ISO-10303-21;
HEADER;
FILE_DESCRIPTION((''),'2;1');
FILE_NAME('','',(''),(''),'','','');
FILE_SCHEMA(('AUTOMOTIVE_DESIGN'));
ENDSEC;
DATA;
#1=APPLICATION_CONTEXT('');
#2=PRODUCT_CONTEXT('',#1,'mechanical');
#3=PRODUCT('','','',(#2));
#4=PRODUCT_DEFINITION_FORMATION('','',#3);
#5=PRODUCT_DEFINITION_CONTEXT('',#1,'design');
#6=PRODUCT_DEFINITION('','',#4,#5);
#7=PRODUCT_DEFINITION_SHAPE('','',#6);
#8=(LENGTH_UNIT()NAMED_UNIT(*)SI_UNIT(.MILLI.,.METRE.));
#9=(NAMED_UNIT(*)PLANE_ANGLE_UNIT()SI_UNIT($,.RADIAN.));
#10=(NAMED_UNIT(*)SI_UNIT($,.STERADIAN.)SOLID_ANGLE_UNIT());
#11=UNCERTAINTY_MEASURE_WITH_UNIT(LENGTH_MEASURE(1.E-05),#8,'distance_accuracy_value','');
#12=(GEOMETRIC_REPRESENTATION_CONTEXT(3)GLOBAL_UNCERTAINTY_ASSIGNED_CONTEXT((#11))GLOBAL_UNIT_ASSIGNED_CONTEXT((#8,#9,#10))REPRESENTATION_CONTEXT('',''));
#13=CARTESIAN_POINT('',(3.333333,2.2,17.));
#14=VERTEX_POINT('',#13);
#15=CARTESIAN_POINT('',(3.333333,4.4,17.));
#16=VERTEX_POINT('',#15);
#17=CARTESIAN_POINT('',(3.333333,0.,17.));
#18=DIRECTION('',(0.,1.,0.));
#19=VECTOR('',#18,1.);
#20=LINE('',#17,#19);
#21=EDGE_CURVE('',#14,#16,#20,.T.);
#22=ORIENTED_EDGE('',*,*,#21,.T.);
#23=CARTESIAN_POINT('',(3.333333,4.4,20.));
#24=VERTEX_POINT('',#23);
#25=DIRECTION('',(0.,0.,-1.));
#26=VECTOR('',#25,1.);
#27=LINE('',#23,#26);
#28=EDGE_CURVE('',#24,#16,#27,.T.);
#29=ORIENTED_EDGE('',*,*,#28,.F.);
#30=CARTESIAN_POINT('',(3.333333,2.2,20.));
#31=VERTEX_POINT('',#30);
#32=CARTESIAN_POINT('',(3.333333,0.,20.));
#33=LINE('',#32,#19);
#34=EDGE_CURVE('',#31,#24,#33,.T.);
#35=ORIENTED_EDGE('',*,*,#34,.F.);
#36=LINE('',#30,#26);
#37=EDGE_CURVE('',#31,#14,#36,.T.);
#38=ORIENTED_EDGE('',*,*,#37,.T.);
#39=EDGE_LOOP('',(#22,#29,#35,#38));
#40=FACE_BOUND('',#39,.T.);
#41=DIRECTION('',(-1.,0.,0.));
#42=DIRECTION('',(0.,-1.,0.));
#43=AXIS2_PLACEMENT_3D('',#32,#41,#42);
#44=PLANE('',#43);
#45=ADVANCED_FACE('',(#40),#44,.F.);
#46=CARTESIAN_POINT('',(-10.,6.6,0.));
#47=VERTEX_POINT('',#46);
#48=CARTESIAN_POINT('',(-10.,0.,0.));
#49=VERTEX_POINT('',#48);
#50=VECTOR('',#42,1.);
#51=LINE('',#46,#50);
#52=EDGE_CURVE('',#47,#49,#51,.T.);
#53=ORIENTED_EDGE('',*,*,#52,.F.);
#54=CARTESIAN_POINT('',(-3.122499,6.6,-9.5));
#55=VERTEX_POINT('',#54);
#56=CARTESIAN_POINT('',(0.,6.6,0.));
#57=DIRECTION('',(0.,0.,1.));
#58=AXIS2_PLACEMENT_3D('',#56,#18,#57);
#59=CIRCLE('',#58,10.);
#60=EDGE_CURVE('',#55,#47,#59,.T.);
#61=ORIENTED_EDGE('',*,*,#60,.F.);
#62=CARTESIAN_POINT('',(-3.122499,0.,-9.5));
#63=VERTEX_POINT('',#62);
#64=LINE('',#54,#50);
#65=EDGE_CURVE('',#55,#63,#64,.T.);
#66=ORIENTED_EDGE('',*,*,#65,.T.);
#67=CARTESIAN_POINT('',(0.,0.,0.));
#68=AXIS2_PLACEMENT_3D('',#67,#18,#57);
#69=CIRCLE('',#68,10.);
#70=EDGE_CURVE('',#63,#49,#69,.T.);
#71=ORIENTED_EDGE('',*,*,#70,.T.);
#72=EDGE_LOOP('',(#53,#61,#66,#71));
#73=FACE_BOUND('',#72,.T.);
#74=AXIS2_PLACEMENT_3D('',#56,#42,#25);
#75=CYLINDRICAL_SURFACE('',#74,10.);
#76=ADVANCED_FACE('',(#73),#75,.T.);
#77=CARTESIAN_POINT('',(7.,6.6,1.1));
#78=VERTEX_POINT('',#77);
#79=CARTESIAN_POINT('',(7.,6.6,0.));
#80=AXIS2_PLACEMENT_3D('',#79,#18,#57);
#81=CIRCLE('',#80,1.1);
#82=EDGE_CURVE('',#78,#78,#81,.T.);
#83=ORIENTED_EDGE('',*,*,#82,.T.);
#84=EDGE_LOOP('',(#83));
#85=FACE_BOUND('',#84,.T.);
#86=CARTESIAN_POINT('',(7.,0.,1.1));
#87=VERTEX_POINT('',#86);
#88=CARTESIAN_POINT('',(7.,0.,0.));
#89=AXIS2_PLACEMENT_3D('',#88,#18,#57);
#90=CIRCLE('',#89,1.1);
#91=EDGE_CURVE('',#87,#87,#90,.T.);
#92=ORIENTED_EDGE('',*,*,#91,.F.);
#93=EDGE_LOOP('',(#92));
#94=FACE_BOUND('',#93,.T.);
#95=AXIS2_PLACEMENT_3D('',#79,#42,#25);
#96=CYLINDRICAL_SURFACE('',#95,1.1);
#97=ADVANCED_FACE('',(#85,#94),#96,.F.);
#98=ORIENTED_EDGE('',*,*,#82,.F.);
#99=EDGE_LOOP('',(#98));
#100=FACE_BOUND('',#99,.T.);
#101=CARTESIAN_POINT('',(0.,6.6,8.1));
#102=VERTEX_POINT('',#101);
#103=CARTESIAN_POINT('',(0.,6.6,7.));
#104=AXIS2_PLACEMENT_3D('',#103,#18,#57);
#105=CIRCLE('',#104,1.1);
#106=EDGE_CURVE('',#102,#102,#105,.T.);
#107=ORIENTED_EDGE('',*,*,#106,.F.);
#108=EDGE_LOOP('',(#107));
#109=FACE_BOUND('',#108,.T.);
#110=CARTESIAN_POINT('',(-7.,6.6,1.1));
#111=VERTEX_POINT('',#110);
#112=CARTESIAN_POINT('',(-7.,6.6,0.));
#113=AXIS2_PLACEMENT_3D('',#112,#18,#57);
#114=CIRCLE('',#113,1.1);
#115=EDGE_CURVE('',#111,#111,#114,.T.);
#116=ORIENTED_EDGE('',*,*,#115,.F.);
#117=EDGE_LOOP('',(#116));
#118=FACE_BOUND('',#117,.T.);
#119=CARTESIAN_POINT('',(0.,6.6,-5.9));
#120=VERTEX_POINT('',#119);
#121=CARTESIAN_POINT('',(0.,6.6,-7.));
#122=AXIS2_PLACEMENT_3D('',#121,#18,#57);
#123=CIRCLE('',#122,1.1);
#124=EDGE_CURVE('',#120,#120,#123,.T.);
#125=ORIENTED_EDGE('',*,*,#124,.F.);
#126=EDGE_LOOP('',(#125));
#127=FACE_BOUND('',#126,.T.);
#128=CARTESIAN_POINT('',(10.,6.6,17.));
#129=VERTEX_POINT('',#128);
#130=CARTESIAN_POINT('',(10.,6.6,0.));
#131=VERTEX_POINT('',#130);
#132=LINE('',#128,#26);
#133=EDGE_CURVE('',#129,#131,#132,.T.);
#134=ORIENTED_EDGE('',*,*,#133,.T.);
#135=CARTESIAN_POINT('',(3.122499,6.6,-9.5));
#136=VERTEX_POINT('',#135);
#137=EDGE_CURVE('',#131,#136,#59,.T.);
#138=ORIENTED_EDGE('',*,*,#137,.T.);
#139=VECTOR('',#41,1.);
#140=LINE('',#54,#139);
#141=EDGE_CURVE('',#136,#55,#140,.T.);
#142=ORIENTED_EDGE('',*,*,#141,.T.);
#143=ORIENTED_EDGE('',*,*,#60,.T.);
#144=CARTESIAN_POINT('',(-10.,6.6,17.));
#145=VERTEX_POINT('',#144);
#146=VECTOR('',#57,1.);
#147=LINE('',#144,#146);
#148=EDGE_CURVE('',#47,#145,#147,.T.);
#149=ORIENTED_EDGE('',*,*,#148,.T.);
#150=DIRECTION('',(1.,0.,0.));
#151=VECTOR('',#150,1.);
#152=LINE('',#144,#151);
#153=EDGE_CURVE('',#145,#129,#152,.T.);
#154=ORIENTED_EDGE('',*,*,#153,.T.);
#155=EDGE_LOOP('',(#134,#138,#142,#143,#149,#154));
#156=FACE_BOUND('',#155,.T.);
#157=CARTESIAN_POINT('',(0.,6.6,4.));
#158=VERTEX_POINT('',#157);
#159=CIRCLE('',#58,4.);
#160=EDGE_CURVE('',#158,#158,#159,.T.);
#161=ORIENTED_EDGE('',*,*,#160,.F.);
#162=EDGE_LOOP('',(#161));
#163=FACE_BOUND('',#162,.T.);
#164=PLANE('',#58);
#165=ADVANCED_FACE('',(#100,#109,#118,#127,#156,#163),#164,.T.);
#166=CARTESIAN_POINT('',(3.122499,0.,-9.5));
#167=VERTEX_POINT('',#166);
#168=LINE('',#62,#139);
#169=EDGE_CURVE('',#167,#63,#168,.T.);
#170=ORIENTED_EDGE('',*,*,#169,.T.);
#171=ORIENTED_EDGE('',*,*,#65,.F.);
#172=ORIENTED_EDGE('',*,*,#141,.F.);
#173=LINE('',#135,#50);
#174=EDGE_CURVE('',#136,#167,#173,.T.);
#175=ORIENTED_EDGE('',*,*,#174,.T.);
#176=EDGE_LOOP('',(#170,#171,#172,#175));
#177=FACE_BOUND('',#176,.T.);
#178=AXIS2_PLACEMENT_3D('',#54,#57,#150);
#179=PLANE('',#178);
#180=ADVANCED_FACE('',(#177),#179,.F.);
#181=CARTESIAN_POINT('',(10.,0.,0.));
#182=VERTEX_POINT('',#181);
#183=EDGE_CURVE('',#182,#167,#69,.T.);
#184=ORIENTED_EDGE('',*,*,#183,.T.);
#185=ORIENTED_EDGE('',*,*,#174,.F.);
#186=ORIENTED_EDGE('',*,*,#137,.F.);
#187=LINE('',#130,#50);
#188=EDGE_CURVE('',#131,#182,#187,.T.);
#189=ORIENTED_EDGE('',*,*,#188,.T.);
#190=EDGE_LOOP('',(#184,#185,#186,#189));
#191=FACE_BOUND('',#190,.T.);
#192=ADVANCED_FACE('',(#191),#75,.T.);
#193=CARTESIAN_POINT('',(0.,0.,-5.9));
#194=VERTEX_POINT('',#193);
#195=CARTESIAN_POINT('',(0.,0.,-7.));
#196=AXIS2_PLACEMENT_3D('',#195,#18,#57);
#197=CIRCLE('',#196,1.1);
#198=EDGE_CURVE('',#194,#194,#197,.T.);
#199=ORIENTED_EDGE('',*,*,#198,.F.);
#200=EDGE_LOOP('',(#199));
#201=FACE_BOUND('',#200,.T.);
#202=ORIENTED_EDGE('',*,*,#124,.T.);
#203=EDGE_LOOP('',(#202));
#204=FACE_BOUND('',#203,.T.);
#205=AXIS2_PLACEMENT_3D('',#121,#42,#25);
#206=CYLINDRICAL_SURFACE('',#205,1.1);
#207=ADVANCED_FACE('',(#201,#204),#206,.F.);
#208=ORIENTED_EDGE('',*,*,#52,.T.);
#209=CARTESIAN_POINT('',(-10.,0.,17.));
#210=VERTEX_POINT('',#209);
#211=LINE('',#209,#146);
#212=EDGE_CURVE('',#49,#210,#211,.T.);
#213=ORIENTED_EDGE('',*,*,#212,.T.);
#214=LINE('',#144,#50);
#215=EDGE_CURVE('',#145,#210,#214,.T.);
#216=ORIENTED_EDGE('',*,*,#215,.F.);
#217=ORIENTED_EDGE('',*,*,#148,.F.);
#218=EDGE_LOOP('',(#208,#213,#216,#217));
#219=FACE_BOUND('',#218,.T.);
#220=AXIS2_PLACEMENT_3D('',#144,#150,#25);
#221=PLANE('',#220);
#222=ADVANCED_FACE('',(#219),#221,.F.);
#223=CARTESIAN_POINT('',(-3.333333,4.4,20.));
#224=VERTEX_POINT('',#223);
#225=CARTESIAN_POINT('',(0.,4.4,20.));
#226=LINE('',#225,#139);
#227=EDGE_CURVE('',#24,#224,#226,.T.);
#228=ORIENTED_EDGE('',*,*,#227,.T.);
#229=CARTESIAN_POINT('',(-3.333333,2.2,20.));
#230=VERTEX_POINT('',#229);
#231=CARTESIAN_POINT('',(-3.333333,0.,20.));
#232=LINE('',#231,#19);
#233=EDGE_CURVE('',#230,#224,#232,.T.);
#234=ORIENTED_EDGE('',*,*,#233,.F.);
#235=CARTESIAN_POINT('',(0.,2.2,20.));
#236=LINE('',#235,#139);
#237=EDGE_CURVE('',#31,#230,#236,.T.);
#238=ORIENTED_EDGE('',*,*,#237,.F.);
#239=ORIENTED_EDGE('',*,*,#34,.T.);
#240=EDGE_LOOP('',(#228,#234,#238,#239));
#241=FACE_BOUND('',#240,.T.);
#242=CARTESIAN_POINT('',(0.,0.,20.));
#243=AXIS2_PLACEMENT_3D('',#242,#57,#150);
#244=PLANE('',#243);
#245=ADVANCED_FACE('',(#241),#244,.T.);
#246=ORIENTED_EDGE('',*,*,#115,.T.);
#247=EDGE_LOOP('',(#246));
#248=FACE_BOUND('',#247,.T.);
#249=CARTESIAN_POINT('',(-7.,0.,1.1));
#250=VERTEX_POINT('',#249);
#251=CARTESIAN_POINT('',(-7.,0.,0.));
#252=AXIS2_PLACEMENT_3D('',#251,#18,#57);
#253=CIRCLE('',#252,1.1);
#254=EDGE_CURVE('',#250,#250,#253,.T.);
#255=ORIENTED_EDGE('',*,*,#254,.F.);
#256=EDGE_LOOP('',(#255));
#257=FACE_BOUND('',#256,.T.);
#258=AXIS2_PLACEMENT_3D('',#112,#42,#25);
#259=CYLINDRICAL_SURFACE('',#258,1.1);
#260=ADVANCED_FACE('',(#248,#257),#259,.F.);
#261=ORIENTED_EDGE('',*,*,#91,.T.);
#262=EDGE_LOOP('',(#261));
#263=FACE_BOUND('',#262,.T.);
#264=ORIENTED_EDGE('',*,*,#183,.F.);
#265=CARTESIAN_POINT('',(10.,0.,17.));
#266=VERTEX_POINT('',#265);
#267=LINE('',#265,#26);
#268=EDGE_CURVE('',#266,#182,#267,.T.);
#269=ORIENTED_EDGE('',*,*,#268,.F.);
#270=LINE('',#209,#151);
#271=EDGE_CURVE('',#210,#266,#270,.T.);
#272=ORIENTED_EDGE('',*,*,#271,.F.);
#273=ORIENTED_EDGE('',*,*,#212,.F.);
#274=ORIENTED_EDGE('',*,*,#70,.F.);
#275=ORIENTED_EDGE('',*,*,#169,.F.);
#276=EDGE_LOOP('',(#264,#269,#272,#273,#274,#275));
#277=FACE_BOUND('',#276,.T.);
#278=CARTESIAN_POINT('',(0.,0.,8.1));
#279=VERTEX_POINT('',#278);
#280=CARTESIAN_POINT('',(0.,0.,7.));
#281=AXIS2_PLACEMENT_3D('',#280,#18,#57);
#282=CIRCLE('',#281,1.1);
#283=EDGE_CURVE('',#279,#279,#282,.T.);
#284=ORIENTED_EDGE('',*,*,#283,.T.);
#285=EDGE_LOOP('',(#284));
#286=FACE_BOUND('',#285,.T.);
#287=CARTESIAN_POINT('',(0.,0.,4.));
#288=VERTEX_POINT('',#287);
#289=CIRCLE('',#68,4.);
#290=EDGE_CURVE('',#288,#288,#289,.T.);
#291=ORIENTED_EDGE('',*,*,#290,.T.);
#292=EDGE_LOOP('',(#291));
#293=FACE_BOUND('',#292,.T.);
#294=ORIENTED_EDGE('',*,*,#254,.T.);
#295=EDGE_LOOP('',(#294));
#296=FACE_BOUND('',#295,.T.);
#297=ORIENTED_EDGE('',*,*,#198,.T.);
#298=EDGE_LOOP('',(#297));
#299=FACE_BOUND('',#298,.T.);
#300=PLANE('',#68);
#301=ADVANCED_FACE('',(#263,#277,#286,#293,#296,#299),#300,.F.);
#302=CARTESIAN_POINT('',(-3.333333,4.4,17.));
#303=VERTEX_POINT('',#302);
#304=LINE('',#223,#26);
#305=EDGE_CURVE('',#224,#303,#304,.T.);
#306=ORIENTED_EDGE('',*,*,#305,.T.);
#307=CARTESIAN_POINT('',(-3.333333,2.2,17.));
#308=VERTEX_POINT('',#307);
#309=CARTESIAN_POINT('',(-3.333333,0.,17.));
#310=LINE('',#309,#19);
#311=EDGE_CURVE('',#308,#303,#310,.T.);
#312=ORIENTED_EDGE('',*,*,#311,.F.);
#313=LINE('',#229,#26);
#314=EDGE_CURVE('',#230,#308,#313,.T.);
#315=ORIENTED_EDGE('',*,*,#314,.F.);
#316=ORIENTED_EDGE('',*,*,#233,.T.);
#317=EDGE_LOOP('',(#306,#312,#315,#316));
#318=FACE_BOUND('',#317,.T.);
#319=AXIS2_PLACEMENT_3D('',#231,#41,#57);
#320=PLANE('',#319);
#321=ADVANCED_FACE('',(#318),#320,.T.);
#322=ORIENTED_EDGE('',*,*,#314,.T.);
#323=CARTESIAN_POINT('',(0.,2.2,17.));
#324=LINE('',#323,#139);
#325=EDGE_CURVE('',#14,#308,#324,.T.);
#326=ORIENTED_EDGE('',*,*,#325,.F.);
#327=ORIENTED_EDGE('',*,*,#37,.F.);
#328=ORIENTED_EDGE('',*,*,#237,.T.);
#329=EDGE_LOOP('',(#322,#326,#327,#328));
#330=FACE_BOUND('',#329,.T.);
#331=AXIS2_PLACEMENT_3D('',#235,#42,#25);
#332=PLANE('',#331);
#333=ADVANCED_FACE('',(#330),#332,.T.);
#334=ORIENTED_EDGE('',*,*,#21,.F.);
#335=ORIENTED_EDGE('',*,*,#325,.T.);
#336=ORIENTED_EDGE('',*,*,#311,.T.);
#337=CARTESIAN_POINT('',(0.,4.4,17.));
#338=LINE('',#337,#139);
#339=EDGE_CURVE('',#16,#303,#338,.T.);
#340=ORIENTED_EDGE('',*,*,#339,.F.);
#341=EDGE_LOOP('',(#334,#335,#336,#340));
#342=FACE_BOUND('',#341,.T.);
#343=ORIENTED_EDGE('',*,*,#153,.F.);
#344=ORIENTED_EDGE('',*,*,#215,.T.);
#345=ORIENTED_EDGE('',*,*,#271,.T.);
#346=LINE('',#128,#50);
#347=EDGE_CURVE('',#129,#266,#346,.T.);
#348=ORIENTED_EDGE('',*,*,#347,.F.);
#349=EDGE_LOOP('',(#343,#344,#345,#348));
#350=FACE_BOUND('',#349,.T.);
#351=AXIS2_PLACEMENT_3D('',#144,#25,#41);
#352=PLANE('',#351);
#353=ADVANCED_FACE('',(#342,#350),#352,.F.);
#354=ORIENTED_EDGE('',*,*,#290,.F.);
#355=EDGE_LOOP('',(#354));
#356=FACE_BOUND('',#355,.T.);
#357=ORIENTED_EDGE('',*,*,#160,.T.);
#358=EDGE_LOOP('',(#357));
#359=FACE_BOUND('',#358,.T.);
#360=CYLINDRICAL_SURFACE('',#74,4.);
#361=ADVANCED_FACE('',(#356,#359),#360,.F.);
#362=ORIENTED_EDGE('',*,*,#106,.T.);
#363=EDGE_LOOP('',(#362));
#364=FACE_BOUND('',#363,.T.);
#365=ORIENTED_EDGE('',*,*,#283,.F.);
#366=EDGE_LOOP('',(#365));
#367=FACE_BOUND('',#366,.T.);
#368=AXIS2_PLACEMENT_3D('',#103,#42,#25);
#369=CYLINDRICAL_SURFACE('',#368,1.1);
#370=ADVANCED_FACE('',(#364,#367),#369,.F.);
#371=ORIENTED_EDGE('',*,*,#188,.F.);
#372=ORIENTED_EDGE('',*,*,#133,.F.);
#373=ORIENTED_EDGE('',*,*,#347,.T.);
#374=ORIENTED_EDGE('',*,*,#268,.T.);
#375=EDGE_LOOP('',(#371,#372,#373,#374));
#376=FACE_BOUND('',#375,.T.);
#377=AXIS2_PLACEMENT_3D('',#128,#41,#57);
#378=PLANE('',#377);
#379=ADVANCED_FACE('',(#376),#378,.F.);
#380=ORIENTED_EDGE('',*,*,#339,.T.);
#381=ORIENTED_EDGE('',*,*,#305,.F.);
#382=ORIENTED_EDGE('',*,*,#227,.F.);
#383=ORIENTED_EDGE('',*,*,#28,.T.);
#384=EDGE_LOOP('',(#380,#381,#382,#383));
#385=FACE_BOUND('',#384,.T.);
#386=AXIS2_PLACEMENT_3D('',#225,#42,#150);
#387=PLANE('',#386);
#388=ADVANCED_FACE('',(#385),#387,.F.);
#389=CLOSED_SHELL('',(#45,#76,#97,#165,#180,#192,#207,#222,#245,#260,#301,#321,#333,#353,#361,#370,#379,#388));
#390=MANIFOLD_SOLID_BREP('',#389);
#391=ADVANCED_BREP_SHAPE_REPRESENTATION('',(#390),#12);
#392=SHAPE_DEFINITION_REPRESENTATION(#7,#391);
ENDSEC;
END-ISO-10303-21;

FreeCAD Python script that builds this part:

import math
import FreeCAD as App
import Part
import Sketcher

V = App.Vector
Q = App.Units.Quantity

doc = App.newDocument("Part")
body = doc.addObject("PartDesign::Body", "Body")

# Sketch on XZ plane
sketch1 = body.newObject("Sketcher::SketchObject", "Sketch")
sketch1.AttachmentSupport = (doc.getObject("XZ_Plane"), [""])
sketch1.MapMode = "FlatFace"
sketch1.addGeometry(Part.LineSegment(V(-10, 17, 0), V(10, 17, 0)), False)
sketch1.addGeometry(Part.LineSegment(V(10, 17, 0), V(10, 0, 0)), False)
sketch1.addGeometry(Part.ArcOfCircle(Part.Circle(V(0, 0, 0), V(0, 0, 1), 10), math.radians(-72), math.radians(0)), False)
sketch1.addGeometry(Part.LineSegment(V(3.1, -9.5, 0), V(-3.1, -9.5, 0)), False)
sketch1.addGeometry(Part.ArcOfCircle(Part.Circle(V(0, 0, 0), V(0, 0, 1), 10), math.radians(180), math.radians(252)), False)
sketch1.addGeometry(Part.LineSegment(V(-10, 0, 0), V(-10, 17, 0)), False)
sketch1.addGeometry(Part.Circle(V(0, 7, 0), V(0, 0, 1), 1.1), False)
sketch1.addGeometry(Part.Circle(V(-7, 0, 0), V(0, 0, 1), 1.1), False)
sketch1.addGeometry(Part.Circle(V(0, 0, 0), V(0, 0, 1), 4), False)
sketch1.addGeometry(Part.Circle(V(7, 0, 0), V(0, 0, 1), 1.1), False)
sketch1.addGeometry(Part.Circle(V(0, -7, 0), V(0, 0, 1), 1.1), False)
sketch1.addConstraint(Sketcher.Constraint("Coincident", 0, 2, 1, 1))
sketch1.addConstraint(Sketcher.Constraint("Tangent", 1, 2, 2, 2))
sketch1.addConstraint(Sketcher.Constraint("Coincident", 2, 1, 3, 1))
sketch1.addConstraint(Sketcher.Constraint("Coincident", 3, 2, 4, 2))
sketch1.addConstraint(Sketcher.Constraint("Tangent", 4, 1, 5, 1))
sketch1.addConstraint(Sketcher.Constraint("Coincident", 5, 2, 0, 1))
sketch1.addConstraint(Sketcher.Constraint("Horizontal", 0))
sketch1.addConstraint(Sketcher.Constraint("Vertical", 1))
sketch1.addConstraint(Sketcher.Constraint("Horizontal", 3))
sketch1.addConstraint(Sketcher.Constraint("Vertical", 5))
sketch1.addConstraint(Sketcher.Constraint("Coincident", 2, 3, -1, 1))
sketch1.addConstraint(Sketcher.Constraint("Coincident", 4, 3, -1, 1))
sketch1.addConstraint(Sketcher.Constraint("Coincident", 8, 3, -1, 1))
sketch1.addConstraint(Sketcher.Constraint("Equal", 2, 4))
sketch1.addConstraint(Sketcher.Constraint("Equal", 6, 7))
sketch1.addConstraint(Sketcher.Constraint("Equal", 7, 9))
sketch1.addConstraint(Sketcher.Constraint("Equal", 9, 10))
sketch1.addConstraint(Sketcher.Constraint("Symmetric", 7, 3, 9, 3, -1, 1))
sketch1.addConstraint(Sketcher.Constraint("Symmetric", 6, 3, 10, 3, -1, 1))
sketch1.addConstraint(Sketcher.Constraint("PointOnObject", 6, 3, -2))
sketch1.addConstraint(Sketcher.Constraint("PointOnObject", 7, 3, -1))
sketch1.addConstraint(Sketcher.Constraint("Diameter", 8, Q("8 mm")))
sketch1.addConstraint(Sketcher.Constraint("Radius", 2, Q("10 mm")))
sketch1.addConstraint(Sketcher.Constraint("Diameter", 6, Q("2.2 mm")))
sketch1.addConstraint(Sketcher.Constraint("DistanceY", 1, 2, 1, 1, Q("17 mm")))
sketch1.addConstraint(Sketcher.Constraint("DistanceY", -1, 1, 6, 3, Q("7 mm")))
sketch1.addConstraint(Sketcher.Constraint("DistanceX", 7, 3, -1, 1, Q("7 mm")))
sketch1.addConstraint(Sketcher.Constraint("DistanceY", 2, 1, -1, 1, Q("9.5 mm")))
pad1 = body.newObject("PartDesign::Pad", "Pad")
pad1.Profile = sketch1
pad1.Length = 6.6
pad1.Reversed = True

# Sketch on XY plane
sketch2 = body.newObject("Sketcher::SketchObject", "Sketch001")
sketch2.AttachmentSupport = (doc.getObject("XY_Plane"), [""])
sketch2.MapMode = "FlatFace"
sketch2.AttachmentOffset = App.Placement(V(0, 0, 17), App.Rotation())
sketch2.addGeometry(Part.LineSegment(V(-3.3, 4.4, 0), V(-3.3, 2.2, 0)), False)
sketch2.addGeometry(Part.LineSegment(V(-3.3, 2.2, 0), V(3.3, 2.2, 0)), False)
sketch2.addGeometry(Part.LineSegment(V(3.3, 2.2, 0), V(3.3, 4.4, 0)), False)
sketch2.addGeometry(Part.LineSegment(V(3.3, 4.4, 0), V(-3.3, 4.4, 0)), False)
sketch2.addConstraint(Sketcher.Constraint("Coincident", 0, 2, 1, 1))
sketch2.addConstraint(Sketcher.Constraint("Coincident", 1, 2, 2, 1))
sketch2.addConstraint(Sketcher.Constraint("Coincident", 2, 2, 3, 1))
sketch2.addConstraint(Sketcher.Constraint("Coincident", 3, 2, 0, 1))
sketch2.addConstraint(Sketcher.Constraint("Vertical", 0))
sketch2.addConstraint(Sketcher.Constraint("Horizontal", 1))
sketch2.addConstraint(Sketcher.Constraint("Vertical", 2))
sketch2.addConstraint(Sketcher.Constraint("Horizontal", 3))
sketch2.addConstraint(Sketcher.Constraint("DistanceY", 0, 2, 0, 1, Q("2.2 mm")))
sketch2.addConstraint(Sketcher.Constraint("DistanceY", -1, 1, 0, 2, Q("2.2 mm")))
sketch2.addConstraint(Sketcher.Constraint("DistanceX", 1, 1, 1, 2, Q("6.666667 mm")))
sketch2.addConstraint(Sketcher.Constraint("DistanceX", 0, 2, -1, 1, Q("3.333333 mm")))
pad2 = body.newObject("PartDesign::Pad", "Pad001")
pad2.Profile = sketch2
pad2.Length = 3

doc.recompute()
